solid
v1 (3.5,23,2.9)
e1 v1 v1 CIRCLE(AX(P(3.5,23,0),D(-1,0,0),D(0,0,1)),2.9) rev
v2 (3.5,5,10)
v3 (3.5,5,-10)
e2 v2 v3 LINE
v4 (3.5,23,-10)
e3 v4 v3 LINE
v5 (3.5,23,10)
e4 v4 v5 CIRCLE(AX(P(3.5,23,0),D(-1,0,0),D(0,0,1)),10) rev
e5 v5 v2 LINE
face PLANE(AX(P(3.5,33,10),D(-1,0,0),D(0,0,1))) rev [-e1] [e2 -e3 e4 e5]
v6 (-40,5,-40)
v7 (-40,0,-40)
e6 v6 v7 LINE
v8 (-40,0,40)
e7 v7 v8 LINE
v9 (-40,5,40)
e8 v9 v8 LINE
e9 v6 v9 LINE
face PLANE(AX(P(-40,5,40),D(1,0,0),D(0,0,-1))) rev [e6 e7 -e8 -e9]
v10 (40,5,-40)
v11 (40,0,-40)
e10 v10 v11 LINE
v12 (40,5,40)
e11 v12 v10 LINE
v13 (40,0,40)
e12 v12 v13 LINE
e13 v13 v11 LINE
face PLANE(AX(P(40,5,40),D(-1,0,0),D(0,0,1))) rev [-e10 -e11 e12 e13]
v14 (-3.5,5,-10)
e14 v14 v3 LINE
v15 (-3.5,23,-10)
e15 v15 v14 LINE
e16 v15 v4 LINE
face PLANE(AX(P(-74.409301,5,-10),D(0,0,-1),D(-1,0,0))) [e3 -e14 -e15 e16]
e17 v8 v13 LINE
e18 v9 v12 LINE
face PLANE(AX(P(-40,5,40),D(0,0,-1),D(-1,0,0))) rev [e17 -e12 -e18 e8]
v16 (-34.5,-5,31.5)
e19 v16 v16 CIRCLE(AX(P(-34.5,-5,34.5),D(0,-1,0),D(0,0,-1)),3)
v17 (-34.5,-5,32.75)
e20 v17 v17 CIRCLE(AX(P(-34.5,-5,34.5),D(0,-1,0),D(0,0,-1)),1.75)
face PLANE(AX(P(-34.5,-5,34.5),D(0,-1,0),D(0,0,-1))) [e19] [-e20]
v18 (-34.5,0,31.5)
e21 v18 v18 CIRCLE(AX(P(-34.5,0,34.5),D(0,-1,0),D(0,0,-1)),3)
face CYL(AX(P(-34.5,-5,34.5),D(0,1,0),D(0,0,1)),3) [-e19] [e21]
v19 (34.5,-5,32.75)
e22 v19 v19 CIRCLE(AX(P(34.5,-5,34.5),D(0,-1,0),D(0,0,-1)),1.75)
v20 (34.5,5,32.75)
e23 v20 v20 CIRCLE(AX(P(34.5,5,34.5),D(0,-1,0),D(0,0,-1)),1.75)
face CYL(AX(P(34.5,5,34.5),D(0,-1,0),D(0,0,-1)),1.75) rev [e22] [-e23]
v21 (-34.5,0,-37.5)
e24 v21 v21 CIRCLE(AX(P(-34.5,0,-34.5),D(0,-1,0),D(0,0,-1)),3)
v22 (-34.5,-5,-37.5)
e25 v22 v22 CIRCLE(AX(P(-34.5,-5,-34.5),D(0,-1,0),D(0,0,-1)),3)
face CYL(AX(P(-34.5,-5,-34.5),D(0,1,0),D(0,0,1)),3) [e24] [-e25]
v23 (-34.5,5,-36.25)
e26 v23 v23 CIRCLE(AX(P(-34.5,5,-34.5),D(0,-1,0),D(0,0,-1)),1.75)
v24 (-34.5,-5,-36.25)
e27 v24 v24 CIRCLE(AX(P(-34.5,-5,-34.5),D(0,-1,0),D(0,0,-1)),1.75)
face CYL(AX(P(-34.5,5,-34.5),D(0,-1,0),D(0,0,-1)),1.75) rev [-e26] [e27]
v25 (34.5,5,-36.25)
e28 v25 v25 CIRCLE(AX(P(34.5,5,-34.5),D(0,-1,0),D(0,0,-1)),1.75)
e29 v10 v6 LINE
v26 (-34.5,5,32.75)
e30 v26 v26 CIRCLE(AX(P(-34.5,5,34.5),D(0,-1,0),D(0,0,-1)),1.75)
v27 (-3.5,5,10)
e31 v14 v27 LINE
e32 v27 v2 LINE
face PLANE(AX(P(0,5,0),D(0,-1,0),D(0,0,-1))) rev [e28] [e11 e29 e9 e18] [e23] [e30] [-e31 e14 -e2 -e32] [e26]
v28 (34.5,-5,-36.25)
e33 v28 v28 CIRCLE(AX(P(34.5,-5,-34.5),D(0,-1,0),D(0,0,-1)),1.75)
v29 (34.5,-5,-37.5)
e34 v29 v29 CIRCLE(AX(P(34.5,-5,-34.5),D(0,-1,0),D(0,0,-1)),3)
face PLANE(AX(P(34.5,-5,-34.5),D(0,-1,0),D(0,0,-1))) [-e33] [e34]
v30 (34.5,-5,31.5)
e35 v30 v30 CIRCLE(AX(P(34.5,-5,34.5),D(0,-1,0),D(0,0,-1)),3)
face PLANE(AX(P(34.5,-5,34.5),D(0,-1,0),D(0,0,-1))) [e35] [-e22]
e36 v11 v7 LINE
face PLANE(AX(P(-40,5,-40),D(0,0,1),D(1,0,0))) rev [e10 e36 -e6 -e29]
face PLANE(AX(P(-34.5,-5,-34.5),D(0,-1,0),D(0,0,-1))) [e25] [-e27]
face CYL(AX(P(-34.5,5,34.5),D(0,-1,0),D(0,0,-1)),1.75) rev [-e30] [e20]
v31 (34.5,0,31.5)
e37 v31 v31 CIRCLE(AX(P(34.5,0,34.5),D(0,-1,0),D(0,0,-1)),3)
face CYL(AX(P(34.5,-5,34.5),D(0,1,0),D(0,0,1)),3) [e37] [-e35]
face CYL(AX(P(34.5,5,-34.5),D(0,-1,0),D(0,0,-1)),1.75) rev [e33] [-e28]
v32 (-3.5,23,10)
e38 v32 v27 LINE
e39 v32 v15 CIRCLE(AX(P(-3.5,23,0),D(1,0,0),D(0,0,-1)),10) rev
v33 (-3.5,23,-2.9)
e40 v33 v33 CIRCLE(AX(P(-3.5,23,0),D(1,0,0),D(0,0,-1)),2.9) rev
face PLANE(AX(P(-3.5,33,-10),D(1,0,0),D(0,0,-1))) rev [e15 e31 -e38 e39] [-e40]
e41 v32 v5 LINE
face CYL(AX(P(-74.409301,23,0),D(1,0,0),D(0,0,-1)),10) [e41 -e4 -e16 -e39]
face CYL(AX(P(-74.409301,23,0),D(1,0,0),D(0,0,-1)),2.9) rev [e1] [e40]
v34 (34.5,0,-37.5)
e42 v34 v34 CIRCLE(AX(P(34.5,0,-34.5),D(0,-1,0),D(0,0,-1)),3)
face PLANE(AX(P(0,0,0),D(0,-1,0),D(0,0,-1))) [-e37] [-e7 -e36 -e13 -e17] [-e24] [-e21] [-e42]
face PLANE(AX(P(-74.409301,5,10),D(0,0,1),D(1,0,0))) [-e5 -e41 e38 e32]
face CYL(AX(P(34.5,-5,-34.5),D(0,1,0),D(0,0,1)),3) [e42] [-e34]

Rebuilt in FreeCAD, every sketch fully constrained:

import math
import FreeCAD as App
import Part
import Sketcher
from FreeCAD import Vector
Q = App.Units.Quantity


def add_polygon(sketch, points):
    """Adds a closed chain of lines whose ends are joined by coincident constraints."""
    first, n = sketch.GeometryCount, len(points)
    for a, b in zip(points, points[1:] + points[:1]):
        sketch.addGeometry(Part.LineSegment(App.Vector(*a, 0), App.Vector(*b, 0)), False)
    for i in range(n):
        sketch.addConstraint(Sketcher.Constraint("Coincident", first + i, 2, first + (i + 1) % n, 1))

doc = App.newDocument("Part")
body = doc.addObject("PartDesign::Body", "Body")

# Sketch on XZ plane
sketch1 = doc.addObject("Sketcher::SketchObject", "Sketch")
body.addObject(sketch1)
sketch1.AttachmentSupport = (doc.XZ_Plane, [""])
sketch1.MapMode = "FlatFace"
add_polygon(sketch1, [(-40, -40), (-40, 40), (40, 40), (40, -40)])  # lines 0-3
sketch1.addConstraint(Sketcher.Constraint("Vertical", 0))
sketch1.addConstraint(Sketcher.Constraint("Horizontal", 1))
sketch1.addConstraint(Sketcher.Constraint("Vertical", 2))
sketch1.addConstraint(Sketcher.Constraint("Horizontal", 3))
sketch1.addConstraint(Sketcher.Constraint("Symmetric", 0, 2, 2, 2, -1, 1))
sketch1.addConstraint(Sketcher.Constraint("Equal", 3, 0))
sketch1.addConstraint(Sketcher.Constraint("DistanceX", 1, 1, 1, 2, Q("80 mm")))
pad1 = doc.addObject("PartDesign::Pad", "Pad")
body.addObject(pad1)
pad1.Profile = sketch1
pad1.Length = 5
pad1.Reversed = True

# Sketch on XZ plane
sketch2 = doc.addObject("Sketcher::SketchObject", "Sketch001")
body.addObject(sketch2)
sketch2.AttachmentSupport = (doc.XZ_Plane, [""])
sketch2.MapMode = "FlatFace"
sketch2.addGeometry(Part.Circle(Vector(-34.5, 34.5, 0), Vector(0, 0, 1), 3), False)
sketch2.addGeometry(Part.Circle(Vector(34.5, 34.5, 0), Vector(0, 0, 1), 3), False)
sketch2.addGeometry(Part.Circle(Vector(-34.5, -34.5, 0), Vector(0, 0, 1), 3), False)
sketch2.addGeometry(Part.Circle(Vector(34.5, -34.5, 0), Vector(0, 0, 1), 3), False)
sketch2.addConstraint(Sketcher.Constraint("Equal", 0, 1))
sketch2.addConstraint(Sketcher.Constraint("Equal", 1, 2))
sketch2.addConstraint(Sketcher.Constraint("Equal", 2, 3))
sketch2.addConstraint(Sketcher.Constraint("Symmetric", 1, 3, 2, 3, -1, 1))
sketch2.addConstraint(Sketcher.Constraint("Symmetric", 0, 3, 3, 3, -1, 1))
sketch2.addConstraint(Sketcher.Constraint("Symmetric", 0, 3, 1, 3, -2))
sketch2.addConstraint(Sketcher.Constraint("Diameter", 0, Q("6 mm")))
sketch2.addConstraint(Sketcher.Constraint("DistanceX", 0, 3, 1, 3, Q("69 mm")))
sketch2.addConstraint(Sketcher.Constraint("DistanceY", 2, 3, 0, 3, Q("69 mm")))
pad2 = doc.addObject("PartDesign::Pad", "Pad001")
body.addObject(pad2)
pad2.Profile = sketch2
pad2.Length = 5

# Sketch on XZ plane
sketch3 = doc.addObject("Sketcher::SketchObject", "Sketch002")
body.addObject(sketch3)
sketch3.AttachmentSupport = (doc.XZ_Plane, [""])
sketch3.MapMode = "FlatFace"
sketch3.AttachmentOffset = App.Placement(Vector(0, 0, 5), App.Rotation())
sketch3.addGeometry(Part.Circle(Vector(-34.5, -34.5, 0), Vector(0, 0, 1), 1.8), False)
sketch3.addGeometry(Part.Circle(Vector(-34.5, 34.5, 0), Vector(0, 0, 1), 1.8), False)
sketch3.addGeometry(Part.Circle(Vector(34.5, 34.5, 0), Vector(0, 0, 1), 1.8), False)
sketch3.addGeometry(Part.Circle(Vector(34.5, -34.5, 0), Vector(0, 0, 1), 1.8), False)
sketch3.addConstraint(Sketcher.Constraint("Equal", 0, 1))
sketch3.addConstraint(Sketcher.Constraint("Equal", 1, 2))
sketch3.addConstraint(Sketcher.Constraint("Equal", 2, 3))
sketch3.addConstraint(Sketcher.Constraint("Symmetric", 0, 3, 2, 3, -1, 1))
sketch3.addConstraint(Sketcher.Constraint("Symmetric", 1, 3, 3, 3, -1, 1))
sketch3.addConstraint(Sketcher.Constraint("Symmetric", 1, 3, 2, 3, -2))
sketch3.addConstraint(Sketcher.Constraint("Diameter", 0, Q("3.5 mm")))
sketch3.addConstraint(Sketcher.Constraint("DistanceY", 0, 3, 1, 3, Q("69 mm")))
sketch3.addConstraint(Sketcher.Constraint("DistanceX", 1, 3, 2, 3, Q("69 mm")))
pocket1 = doc.addObject("PartDesign::Pocket", "Pocket")
body.addObject(pocket1)
pocket1.Profile = sketch3
pocket1.Type = "ThroughAll"

# Sketch on YZ plane
sketch4 = doc.addObject("Sketcher::SketchObject", "Sketch003")
body.addObject(sketch4)
sketch4.AttachmentSupport = (doc.YZ_Plane, [""])
sketch4.MapMode = "FlatFace"
sketch4.AttachmentOffset = App.Placement(Vector(0, 0, 40), App.Rotation())
sketch4.addGeometry(Part.LineSegment(Vector(23, 10, 0), Vector(5, 10, 0)), False)
sketch4.addGeometry(Part.LineSegment(Vector(5, 10, 0), Vector(5, -10, 0)), False)
sketch4.addGeometry(Part.LineSegment(Vector(5, -10, 0), Vector(23, -10, 0)), False)
sketch4.addGeometry(Part.ArcOfCircle(Part.Circle(Vector(23, 0, 0), Vector(0, 0, 1), 10), math.radians(-90), math.radians(90)), False)
sketch4.addGeometry(Part.Circle(Vector(23, 0, 0), Vector(0, 0, 1), 2.9), False)
sketch4.addConstraint(Sketcher.Constraint("Coincident", 0, 2, 1, 1))
sketch4.addConstraint(Sketcher.Constraint("Coincident", 1, 2, 2, 1))
sketch4.addConstraint(Sketcher.Constraint("Tangent", 2, 2, 3, 1))
sketch4.addConstraint(Sketcher.Constraint("Tangent", 3, 2, 0, 1))
sketch4.addConstraint(Sketcher.Constraint("Horizontal", 0))
sketch4.addConstraint(Sketcher.Constraint("Vertical", 1))
sketch4.addConstraint(Sketcher.Constraint("Horizontal", 2))
sketch4.addConstraint(Sketcher.Constraint("Coincident", 4, 3, 3, 3))
sketch4.addConstraint(Sketcher.Constraint("PointOnObject", 3, 3, -1))
sketch4.addConstraint(Sketcher.Constraint("Radius", 3, Q("10 mm")))
sketch4.addConstraint(Sketcher.Constraint("Diameter", 4, Q("5.8 mm")))
sketch4.addConstraint(Sketcher.Constraint("DistanceX", 0, 2, 0, 1, Q("18 mm")))
sketch4.addConstraint(Sketcher.Constraint("DistanceX", -1, 1, 3, 3, Q("23 mm")))
pad3 = doc.addObject("PartDesign::Pad", "Pad002")
body.addObject(pad3)
pad3.Profile = sketch4
pad3.Length = 80
pad3.Reversed = True

# Sketch on XZ plane
sketch5 = doc.addObject("Sketcher::SketchObject", "Sketch004")
body.addObject(sketch5)
sketch5.AttachmentSupport = (doc.XZ_Plane, [""])
sketch5.MapMode = "FlatFace"
sketch5.AttachmentOffset = App.Placement(Vector(0, 0, -5), App.Rotation())
add_polygon(sketch5, [(-40, -40), (-40, 40), (40, 40), (40, -40)])  # lines 0-3
add_polygon(sketch5, [(4, 10), (-4, 10), (-4, -10), (4, -10)])  # lines 4-7
sketch5.addConstraint(Sketcher.Constraint("Vertical", 0))
sketch5.addConstraint(Sketcher.Constraint("Horizontal", 1))
sketch5.addConstraint(Sketcher.Constraint("Vertical", 2))
sketch5.addConstraint(Sketcher.Constraint("Horizontal", 3))
sketch5.addConstraint(Sketcher.Constraint("Horizontal", 4))
sketch5.addConstraint(Sketcher.Constraint("Vertical", 5))
sketch5.addConstraint(Sketcher.Constraint("Horizontal", 6))
sketch5.addConstraint(Sketcher.Constraint("Vertical", 7))
sketch5.addConstraint(Sketcher.Constraint("Symmetric", 0, 2, 2, 2, -1, 1))
sketch5.addConstraint(Sketcher.Constraint("Symmetric", 4, 2, 6, 2, -1, 1))
sketch5.addConstraint(Sketcher.Constraint("Equal", 3, 0))
sketch5.addConstraint(Sketcher.Constraint("DistanceX", 1, 1, 1, 2, Q("80 mm")))
sketch5.addConstraint(Sketcher.Constraint("DistanceX", 4, 2, 4, 1, Q("7 mm")))
sketch5.addConstraint(Sketcher.Constraint("DistanceY", 5, 2, 5, 1, Q("20 mm")))
pocket2 = doc.addObject("PartDesign::Pocket", "Pocket001")
body.addObject(pocket2)
pocket2.Profile = sketch5
pocket2.Type = "ThroughAll"

doc.recompute()
